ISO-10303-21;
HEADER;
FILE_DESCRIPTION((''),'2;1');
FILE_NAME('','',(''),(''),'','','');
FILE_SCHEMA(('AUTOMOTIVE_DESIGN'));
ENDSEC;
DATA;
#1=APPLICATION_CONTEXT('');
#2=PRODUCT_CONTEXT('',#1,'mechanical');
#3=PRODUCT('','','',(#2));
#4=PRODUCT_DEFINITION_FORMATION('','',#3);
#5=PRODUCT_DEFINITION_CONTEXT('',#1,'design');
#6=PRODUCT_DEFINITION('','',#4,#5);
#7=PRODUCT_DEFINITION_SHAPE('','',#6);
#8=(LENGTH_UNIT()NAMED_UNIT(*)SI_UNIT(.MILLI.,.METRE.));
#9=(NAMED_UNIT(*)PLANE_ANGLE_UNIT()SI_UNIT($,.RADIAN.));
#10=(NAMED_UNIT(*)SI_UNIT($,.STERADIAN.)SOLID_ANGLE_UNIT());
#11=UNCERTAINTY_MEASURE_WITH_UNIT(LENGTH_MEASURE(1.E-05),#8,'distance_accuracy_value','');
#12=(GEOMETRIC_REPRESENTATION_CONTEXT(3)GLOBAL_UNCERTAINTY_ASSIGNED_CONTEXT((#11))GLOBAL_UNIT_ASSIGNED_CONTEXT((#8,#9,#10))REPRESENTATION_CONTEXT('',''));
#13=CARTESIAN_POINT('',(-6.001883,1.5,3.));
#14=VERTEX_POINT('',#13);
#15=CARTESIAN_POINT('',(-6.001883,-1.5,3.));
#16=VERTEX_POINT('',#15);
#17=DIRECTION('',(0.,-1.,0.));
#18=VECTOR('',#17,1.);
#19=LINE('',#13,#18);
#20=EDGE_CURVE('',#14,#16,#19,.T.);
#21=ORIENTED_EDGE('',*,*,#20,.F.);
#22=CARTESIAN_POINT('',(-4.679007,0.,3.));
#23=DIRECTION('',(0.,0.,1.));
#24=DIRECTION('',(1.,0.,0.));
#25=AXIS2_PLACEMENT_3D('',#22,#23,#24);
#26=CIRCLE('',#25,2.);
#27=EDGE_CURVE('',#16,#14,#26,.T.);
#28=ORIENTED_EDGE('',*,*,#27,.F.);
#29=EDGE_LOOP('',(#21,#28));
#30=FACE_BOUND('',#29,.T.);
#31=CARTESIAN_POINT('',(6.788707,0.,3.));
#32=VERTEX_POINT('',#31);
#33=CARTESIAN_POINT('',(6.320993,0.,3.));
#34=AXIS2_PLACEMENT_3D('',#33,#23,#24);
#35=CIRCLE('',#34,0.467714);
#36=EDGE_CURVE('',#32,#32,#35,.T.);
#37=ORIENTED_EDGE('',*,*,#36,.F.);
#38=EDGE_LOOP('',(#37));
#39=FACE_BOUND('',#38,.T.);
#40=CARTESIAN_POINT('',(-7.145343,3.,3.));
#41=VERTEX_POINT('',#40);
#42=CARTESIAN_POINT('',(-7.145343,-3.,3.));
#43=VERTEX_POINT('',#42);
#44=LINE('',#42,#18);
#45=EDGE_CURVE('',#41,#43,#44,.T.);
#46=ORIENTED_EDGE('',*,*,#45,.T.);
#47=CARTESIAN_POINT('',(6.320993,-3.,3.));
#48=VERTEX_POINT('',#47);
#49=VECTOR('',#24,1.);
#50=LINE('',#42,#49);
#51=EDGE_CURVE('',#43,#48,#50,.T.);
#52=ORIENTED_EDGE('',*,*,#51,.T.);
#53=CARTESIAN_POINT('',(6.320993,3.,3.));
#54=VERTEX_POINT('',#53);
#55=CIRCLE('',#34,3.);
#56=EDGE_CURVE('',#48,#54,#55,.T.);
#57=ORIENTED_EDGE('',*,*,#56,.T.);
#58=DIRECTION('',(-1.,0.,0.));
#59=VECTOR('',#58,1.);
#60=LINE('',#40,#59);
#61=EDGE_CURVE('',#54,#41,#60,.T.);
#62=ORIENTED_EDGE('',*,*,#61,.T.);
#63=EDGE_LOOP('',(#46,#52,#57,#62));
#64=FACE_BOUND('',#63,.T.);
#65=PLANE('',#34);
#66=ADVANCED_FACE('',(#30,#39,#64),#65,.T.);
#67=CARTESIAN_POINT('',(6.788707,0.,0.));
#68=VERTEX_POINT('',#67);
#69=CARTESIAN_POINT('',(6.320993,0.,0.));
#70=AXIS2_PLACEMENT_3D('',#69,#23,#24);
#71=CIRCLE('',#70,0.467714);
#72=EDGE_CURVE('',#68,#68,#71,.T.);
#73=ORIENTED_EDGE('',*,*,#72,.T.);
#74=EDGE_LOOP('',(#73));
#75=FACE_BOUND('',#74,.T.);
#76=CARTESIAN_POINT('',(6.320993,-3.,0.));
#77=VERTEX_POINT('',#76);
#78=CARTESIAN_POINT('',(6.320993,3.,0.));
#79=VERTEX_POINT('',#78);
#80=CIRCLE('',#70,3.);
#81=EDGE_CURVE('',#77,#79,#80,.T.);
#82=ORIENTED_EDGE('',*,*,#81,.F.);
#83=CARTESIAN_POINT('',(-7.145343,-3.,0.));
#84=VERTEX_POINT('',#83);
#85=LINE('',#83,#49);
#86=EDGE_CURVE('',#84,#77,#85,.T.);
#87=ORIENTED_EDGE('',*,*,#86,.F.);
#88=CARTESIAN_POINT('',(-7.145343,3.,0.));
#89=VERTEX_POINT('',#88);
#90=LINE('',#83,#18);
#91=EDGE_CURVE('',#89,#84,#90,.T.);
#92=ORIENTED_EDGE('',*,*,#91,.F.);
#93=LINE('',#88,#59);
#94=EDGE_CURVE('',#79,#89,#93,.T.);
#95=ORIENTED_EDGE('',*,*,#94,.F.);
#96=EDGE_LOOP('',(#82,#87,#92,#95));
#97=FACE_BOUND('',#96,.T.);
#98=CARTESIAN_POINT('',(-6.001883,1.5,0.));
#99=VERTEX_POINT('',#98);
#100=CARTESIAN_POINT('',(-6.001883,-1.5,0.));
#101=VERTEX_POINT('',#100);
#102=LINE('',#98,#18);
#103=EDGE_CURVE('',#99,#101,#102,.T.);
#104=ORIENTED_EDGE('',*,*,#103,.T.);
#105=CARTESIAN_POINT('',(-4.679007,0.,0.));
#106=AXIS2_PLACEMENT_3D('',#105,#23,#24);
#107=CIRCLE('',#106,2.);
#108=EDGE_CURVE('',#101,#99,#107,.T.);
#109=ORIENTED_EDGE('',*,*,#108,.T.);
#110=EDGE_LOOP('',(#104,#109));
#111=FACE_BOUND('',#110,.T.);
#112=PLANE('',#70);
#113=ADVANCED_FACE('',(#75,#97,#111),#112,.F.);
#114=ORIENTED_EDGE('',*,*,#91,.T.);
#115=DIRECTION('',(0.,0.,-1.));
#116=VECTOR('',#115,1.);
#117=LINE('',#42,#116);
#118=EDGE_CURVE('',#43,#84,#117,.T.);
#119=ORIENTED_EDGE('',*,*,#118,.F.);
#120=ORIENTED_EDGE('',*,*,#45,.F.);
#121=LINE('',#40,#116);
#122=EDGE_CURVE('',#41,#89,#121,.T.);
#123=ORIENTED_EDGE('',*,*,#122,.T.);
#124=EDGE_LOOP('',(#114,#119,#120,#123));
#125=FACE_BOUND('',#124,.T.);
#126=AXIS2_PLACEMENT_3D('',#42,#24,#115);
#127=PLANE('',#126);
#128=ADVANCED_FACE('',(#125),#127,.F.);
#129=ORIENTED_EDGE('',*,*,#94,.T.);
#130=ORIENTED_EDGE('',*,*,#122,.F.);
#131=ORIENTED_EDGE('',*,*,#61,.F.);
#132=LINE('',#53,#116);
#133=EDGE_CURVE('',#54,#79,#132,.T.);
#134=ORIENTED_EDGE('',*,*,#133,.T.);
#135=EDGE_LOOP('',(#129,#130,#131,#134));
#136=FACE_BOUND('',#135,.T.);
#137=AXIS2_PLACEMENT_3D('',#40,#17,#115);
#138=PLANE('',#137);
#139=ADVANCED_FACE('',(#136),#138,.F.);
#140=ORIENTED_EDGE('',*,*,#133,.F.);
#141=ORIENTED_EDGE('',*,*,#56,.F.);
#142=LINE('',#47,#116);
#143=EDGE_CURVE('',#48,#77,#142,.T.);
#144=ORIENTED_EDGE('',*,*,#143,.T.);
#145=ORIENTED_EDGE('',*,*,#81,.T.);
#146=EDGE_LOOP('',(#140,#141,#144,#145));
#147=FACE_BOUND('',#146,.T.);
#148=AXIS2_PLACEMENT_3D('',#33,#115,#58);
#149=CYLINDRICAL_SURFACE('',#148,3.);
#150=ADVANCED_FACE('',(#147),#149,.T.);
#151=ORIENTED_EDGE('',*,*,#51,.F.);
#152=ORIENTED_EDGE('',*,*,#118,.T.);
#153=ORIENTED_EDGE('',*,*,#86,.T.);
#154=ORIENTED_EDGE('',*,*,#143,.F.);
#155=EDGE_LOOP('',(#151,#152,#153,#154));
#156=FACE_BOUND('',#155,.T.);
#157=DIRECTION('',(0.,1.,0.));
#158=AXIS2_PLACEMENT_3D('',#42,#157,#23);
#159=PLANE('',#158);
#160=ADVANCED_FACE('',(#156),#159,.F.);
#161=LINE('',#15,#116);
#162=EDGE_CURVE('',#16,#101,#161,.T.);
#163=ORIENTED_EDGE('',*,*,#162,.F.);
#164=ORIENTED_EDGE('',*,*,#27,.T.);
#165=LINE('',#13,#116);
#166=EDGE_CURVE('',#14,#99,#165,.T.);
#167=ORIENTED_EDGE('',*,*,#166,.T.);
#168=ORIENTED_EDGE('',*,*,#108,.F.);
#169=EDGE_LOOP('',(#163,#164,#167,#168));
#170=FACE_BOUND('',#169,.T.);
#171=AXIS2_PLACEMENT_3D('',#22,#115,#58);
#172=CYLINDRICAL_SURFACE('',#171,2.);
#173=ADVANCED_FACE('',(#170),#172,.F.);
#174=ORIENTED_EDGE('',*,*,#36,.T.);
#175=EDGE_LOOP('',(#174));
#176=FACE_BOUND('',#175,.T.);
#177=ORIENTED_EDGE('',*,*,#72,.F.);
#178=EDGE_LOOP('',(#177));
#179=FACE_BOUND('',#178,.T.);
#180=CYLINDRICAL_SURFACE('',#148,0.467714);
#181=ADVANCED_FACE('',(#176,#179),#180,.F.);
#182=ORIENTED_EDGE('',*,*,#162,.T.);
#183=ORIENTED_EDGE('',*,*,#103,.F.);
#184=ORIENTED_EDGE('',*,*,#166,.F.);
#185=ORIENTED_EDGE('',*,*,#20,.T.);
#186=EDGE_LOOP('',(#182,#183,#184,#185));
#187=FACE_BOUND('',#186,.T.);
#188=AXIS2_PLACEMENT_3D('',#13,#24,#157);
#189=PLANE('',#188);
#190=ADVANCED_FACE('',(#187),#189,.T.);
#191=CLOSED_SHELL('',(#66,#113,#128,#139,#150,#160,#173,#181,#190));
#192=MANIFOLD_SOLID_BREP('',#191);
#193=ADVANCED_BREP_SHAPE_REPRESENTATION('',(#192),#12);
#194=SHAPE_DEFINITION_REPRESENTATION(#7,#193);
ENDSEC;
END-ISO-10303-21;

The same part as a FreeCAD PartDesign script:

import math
import FreeCAD as App
import Part
import Sketcher
from FreeCAD import Vector
Q = App.Units.Quantity

doc = App.newDocument("Part")
body = doc.addObject("PartDesign::Body", "Body")

# Sketch on XY plane
sketch1 = body.newObject("Sketcher::SketchObject", "Sketch")
sketch1.AttachmentSupport = (doc.getObject("XY_Plane"), [""])
sketch1.MapMode = "FlatFace"
sketch1.addGeometry(Part.LineSegment(Vector(-7.15, -3, 0), Vector(6.32, -3, 0)), False)
sketch1.addGeometry(Part.ArcOfCircle(Part.Circle(Vector(6.32, 0, 0), Vector(0, 0, 1), 3), math.radians(-90), math.radians(90)), False)
sketch1.addGeometry(Part.LineSegment(Vector(6.32, 3, 0), Vector(-7.15, 3, 0)), False)
sketch1.addGeometry(Part.LineSegment(Vector(-7.15, 3, 0), Vector(-7.15, -3, 0)), False)
sketch1.addGeometry(Part.LineSegment(Vector(-6, -1.5, 0), Vector(-6, 1.5, 0)), False)
sketch1.addGeometry(Part.ArcOfCircle(Part.Circle(Vector(-4.68, 0, 0), Vector(0, 0, 1), 2), math.radians(-131), math.radians(131)), False)
sketch1.addGeometry(Part.Circle(Vector(6.32, 0, 0), Vector(0, 0, 1), 0.47), False)
sketch1.addConstraint(Sketcher.Constraint("Tangent", 0, 2, 1, 1))
sketch1.addConstraint(Sketcher.Constraint("Tangent", 1, 2, 2, 1))
sketch1.addConstraint(Sketcher.Constraint("Coincident", 2, 2, 3, 1))
sketch1.addConstraint(Sketcher.Constraint("Coincident", 3, 2, 0, 1))
sketch1.addConstraint(Sketcher.Constraint("Coincident", 4, 1, 5, 1))
sketch1.addConstraint(Sketcher.Constraint("Coincident", 5, 2, 4, 2))
sketch1.addConstraint(Sketcher.Constraint("Horizontal", 0))
sketch1.addConstraint(Sketcher.Constraint("Horizontal", 2))
sketch1.addConstraint(Sketcher.Constraint("Vertical", 3))
sketch1.addConstraint(Sketcher.Constraint("Vertical", 4))
sketch1.addConstraint(Sketcher.Constraint("Coincident", 6, 3, 1, 3))
sketch1.addConstraint(Sketcher.Constraint("PointOnObject", 1, 3, -1))
sketch1.addConstraint(Sketcher.Constraint("PointOnObject", 5, 3, -1))
sketch1.addConstraint(Sketcher.Constraint("Radius", 1, Q("3 mm")))
sketch1.addConstraint(Sketcher.Constraint("Radius", 5, Q("2 mm")))
sketch1.addConstraint(Sketcher.Constraint("DistanceY", 4, 1, 4, 2, Q("3 mm")))
sketch1.addConstraint(Sketcher.Constraint("DistanceX", 5, 3, 1, 3, Q("11 mm")))
sketch1.addConstraint(Sketcher.Constraint("Diameter", 6, Q("0.935427 mm")))
sketch1.addConstraint(Sketcher.Constraint("DistanceX", 0, 1, 0, 2, Q("13.466336 mm")))
sketch1.addConstraint(Sketcher.Constraint("DistanceX", -1, 1, 1, 3, Q("6.320993 mm")))
pad1 = body.newObject("PartDesign::Pad", "Pad")
pad1.Profile = sketch1
pad1.Length = 3

doc.recompute()
